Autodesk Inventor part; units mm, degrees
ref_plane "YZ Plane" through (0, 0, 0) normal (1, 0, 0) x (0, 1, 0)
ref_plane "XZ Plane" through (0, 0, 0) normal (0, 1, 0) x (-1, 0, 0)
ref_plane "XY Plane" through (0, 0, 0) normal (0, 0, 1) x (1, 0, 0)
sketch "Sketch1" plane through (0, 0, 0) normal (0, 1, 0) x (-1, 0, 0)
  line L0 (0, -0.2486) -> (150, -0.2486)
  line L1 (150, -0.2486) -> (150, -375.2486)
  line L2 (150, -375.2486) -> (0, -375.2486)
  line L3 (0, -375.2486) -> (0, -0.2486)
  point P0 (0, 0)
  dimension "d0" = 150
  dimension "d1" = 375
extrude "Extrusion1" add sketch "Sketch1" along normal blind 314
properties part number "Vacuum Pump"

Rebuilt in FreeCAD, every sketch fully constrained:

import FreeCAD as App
import Part
import Sketcher


def add_polygon(sketch, points):
    """Adds a closed chain of lines whose ends are joined by coincident constraints."""
    first, n = sketch.GeometryCount, len(points)
    for a, b in zip(points, points[1:] + points[:1]):
        sketch.addGeometry(Part.LineSegment(App.Vector(*a, 0), App.Vector(*b, 0)), False)
    for i in range(n):
        sketch.addConstraint(Sketcher.Constraint("Coincident", first + i, 2, first + (i + 1) % n, 1))

doc = App.newDocument("Part")
params = doc.addObject("Spreadsheet::Sheet", "Params")
for row, (alias, value) in enumerate([
    ("sketch1_width", "150 mm"),
    ("sketch1_height", "375 mm"),
    ("pad1_length", "314 mm"),
], start=1):
    params.set(f"A{row}", alias)
    params.set(f"B{row}", "=" + value)
    params.setAlias(f"B{row}", alias)

body = doc.addObject("PartDesign::Body", "Body")

# Sketch on XZ plane
sketch1 = body.newObject("Sketcher::SketchObject", "Sketch")
sketch1.AttachmentSupport = (doc.getObject("XZ_Plane"), [""])
sketch1.MapMode = "FlatFace"
add_polygon(sketch1, [(-150, -0.2486), (0, -0.2486), (0, -375.2486), (-150, -375.2486)])  # lines 0-3
sketch1.addConstraint(Sketcher.Constraint("Horizontal", 0))
sketch1.addConstraint(Sketcher.Constraint("Vertical", 1))
sketch1.addConstraint(Sketcher.Constraint("Horizontal", 2))
sketch1.addConstraint(Sketcher.Constraint("Vertical", 3))
sketch1.addConstraint(Sketcher.Constraint("PointOnObject", 0, 2, -2))
sketch1.addConstraint(Sketcher.Constraint("DistanceX", 0, 1, 0, 2, 150.0))
sketch1.addConstraint(Sketcher.Constraint("DistanceY", 1, 2, 1, 1, 375.0))
sketch1.addConstraint(Sketcher.Constraint("DistanceY", 0, 2, -1, 1, 0.2486))
sketch1.setExpression("Constraints[9]", "Params.sketch1_width")
sketch1.setExpression("Constraints[10]", "Params.sketch1_height")
pad1 = body.newObject("PartDesign::Pad", "Pad")
pad1.Profile = sketch1
pad1.setExpression("Length", "Params.pad1_length")
pad1.Reversed = True

doc.recompute()
